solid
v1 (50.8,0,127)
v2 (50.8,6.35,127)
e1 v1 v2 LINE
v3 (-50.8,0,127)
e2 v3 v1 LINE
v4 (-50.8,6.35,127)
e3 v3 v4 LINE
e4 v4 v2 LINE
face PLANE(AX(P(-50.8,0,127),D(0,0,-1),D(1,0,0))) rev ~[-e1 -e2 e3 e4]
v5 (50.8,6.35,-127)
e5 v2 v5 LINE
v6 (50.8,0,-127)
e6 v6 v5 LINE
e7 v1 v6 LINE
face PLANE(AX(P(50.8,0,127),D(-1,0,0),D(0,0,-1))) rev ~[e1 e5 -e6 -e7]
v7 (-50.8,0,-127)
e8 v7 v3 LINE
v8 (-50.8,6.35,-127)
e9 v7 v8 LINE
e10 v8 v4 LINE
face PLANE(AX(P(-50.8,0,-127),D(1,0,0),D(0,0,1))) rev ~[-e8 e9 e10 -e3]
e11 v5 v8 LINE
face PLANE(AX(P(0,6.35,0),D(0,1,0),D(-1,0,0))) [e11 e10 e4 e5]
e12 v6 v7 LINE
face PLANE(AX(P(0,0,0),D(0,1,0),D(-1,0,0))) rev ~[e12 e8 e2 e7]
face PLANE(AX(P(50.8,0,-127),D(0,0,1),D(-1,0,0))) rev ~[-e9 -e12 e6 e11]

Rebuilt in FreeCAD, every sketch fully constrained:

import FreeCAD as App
import Part
import Sketcher
from FreeCAD import Vector
Q = App.Units.Quantity


def add_polygon(sketch, points):
    """Adds a closed chain of lines whose ends are joined by coincident constraints."""
    first, n = sketch.GeometryCount, len(points)
    for a, b in zip(points, points[1:] + points[:1]):
        sketch.addGeometry(Part.LineSegment(App.Vector(*a, 0), App.Vector(*b, 0)), False)
    for i in range(n):
        sketch.addConstraint(Sketcher.Constraint("Coincident", first + i, 2, first + (i + 1) % n, 1))

doc = App.newDocument("Part")
body = doc.addObject("PartDesign::Body", "Body")

# Sketch on XZ plane
sketch1 = body.newObject("Sketcher::SketchObject", "Sketch")
sketch1.AttachmentSupport = (doc.getObject("XZ_Plane"), [""])
sketch1.MapMode = "FlatFace"
add_polygon(sketch1, [(-51, -127), (-51, 127), (51, 127), (51, -127)])  # lines 0-3
sketch1.addConstraint([
    Sketcher.Constraint("Vertical", 0),
    Sketcher.Constraint("Horizontal", 1),
    Sketcher.Constraint("Vertical", 2),
    Sketcher.Constraint("Horizontal", 3),
    Sketcher.Constraint("Symmetric", 0, 2, 2, 2, -1, 1),
    Sketcher.Constraint("DistanceX", 1, 1, 1, 2, Q("4 in")),
    Sketcher.Constraint("DistanceY", 0, 1, 0, 2, Q("10 in")),
])
pad1 = body.newObject("PartDesign::Pad", "Pad")
pad1.Profile = sketch1
pad1.Length = Q("0.25 in")
pad1.Reversed = True

doc.recompute()
